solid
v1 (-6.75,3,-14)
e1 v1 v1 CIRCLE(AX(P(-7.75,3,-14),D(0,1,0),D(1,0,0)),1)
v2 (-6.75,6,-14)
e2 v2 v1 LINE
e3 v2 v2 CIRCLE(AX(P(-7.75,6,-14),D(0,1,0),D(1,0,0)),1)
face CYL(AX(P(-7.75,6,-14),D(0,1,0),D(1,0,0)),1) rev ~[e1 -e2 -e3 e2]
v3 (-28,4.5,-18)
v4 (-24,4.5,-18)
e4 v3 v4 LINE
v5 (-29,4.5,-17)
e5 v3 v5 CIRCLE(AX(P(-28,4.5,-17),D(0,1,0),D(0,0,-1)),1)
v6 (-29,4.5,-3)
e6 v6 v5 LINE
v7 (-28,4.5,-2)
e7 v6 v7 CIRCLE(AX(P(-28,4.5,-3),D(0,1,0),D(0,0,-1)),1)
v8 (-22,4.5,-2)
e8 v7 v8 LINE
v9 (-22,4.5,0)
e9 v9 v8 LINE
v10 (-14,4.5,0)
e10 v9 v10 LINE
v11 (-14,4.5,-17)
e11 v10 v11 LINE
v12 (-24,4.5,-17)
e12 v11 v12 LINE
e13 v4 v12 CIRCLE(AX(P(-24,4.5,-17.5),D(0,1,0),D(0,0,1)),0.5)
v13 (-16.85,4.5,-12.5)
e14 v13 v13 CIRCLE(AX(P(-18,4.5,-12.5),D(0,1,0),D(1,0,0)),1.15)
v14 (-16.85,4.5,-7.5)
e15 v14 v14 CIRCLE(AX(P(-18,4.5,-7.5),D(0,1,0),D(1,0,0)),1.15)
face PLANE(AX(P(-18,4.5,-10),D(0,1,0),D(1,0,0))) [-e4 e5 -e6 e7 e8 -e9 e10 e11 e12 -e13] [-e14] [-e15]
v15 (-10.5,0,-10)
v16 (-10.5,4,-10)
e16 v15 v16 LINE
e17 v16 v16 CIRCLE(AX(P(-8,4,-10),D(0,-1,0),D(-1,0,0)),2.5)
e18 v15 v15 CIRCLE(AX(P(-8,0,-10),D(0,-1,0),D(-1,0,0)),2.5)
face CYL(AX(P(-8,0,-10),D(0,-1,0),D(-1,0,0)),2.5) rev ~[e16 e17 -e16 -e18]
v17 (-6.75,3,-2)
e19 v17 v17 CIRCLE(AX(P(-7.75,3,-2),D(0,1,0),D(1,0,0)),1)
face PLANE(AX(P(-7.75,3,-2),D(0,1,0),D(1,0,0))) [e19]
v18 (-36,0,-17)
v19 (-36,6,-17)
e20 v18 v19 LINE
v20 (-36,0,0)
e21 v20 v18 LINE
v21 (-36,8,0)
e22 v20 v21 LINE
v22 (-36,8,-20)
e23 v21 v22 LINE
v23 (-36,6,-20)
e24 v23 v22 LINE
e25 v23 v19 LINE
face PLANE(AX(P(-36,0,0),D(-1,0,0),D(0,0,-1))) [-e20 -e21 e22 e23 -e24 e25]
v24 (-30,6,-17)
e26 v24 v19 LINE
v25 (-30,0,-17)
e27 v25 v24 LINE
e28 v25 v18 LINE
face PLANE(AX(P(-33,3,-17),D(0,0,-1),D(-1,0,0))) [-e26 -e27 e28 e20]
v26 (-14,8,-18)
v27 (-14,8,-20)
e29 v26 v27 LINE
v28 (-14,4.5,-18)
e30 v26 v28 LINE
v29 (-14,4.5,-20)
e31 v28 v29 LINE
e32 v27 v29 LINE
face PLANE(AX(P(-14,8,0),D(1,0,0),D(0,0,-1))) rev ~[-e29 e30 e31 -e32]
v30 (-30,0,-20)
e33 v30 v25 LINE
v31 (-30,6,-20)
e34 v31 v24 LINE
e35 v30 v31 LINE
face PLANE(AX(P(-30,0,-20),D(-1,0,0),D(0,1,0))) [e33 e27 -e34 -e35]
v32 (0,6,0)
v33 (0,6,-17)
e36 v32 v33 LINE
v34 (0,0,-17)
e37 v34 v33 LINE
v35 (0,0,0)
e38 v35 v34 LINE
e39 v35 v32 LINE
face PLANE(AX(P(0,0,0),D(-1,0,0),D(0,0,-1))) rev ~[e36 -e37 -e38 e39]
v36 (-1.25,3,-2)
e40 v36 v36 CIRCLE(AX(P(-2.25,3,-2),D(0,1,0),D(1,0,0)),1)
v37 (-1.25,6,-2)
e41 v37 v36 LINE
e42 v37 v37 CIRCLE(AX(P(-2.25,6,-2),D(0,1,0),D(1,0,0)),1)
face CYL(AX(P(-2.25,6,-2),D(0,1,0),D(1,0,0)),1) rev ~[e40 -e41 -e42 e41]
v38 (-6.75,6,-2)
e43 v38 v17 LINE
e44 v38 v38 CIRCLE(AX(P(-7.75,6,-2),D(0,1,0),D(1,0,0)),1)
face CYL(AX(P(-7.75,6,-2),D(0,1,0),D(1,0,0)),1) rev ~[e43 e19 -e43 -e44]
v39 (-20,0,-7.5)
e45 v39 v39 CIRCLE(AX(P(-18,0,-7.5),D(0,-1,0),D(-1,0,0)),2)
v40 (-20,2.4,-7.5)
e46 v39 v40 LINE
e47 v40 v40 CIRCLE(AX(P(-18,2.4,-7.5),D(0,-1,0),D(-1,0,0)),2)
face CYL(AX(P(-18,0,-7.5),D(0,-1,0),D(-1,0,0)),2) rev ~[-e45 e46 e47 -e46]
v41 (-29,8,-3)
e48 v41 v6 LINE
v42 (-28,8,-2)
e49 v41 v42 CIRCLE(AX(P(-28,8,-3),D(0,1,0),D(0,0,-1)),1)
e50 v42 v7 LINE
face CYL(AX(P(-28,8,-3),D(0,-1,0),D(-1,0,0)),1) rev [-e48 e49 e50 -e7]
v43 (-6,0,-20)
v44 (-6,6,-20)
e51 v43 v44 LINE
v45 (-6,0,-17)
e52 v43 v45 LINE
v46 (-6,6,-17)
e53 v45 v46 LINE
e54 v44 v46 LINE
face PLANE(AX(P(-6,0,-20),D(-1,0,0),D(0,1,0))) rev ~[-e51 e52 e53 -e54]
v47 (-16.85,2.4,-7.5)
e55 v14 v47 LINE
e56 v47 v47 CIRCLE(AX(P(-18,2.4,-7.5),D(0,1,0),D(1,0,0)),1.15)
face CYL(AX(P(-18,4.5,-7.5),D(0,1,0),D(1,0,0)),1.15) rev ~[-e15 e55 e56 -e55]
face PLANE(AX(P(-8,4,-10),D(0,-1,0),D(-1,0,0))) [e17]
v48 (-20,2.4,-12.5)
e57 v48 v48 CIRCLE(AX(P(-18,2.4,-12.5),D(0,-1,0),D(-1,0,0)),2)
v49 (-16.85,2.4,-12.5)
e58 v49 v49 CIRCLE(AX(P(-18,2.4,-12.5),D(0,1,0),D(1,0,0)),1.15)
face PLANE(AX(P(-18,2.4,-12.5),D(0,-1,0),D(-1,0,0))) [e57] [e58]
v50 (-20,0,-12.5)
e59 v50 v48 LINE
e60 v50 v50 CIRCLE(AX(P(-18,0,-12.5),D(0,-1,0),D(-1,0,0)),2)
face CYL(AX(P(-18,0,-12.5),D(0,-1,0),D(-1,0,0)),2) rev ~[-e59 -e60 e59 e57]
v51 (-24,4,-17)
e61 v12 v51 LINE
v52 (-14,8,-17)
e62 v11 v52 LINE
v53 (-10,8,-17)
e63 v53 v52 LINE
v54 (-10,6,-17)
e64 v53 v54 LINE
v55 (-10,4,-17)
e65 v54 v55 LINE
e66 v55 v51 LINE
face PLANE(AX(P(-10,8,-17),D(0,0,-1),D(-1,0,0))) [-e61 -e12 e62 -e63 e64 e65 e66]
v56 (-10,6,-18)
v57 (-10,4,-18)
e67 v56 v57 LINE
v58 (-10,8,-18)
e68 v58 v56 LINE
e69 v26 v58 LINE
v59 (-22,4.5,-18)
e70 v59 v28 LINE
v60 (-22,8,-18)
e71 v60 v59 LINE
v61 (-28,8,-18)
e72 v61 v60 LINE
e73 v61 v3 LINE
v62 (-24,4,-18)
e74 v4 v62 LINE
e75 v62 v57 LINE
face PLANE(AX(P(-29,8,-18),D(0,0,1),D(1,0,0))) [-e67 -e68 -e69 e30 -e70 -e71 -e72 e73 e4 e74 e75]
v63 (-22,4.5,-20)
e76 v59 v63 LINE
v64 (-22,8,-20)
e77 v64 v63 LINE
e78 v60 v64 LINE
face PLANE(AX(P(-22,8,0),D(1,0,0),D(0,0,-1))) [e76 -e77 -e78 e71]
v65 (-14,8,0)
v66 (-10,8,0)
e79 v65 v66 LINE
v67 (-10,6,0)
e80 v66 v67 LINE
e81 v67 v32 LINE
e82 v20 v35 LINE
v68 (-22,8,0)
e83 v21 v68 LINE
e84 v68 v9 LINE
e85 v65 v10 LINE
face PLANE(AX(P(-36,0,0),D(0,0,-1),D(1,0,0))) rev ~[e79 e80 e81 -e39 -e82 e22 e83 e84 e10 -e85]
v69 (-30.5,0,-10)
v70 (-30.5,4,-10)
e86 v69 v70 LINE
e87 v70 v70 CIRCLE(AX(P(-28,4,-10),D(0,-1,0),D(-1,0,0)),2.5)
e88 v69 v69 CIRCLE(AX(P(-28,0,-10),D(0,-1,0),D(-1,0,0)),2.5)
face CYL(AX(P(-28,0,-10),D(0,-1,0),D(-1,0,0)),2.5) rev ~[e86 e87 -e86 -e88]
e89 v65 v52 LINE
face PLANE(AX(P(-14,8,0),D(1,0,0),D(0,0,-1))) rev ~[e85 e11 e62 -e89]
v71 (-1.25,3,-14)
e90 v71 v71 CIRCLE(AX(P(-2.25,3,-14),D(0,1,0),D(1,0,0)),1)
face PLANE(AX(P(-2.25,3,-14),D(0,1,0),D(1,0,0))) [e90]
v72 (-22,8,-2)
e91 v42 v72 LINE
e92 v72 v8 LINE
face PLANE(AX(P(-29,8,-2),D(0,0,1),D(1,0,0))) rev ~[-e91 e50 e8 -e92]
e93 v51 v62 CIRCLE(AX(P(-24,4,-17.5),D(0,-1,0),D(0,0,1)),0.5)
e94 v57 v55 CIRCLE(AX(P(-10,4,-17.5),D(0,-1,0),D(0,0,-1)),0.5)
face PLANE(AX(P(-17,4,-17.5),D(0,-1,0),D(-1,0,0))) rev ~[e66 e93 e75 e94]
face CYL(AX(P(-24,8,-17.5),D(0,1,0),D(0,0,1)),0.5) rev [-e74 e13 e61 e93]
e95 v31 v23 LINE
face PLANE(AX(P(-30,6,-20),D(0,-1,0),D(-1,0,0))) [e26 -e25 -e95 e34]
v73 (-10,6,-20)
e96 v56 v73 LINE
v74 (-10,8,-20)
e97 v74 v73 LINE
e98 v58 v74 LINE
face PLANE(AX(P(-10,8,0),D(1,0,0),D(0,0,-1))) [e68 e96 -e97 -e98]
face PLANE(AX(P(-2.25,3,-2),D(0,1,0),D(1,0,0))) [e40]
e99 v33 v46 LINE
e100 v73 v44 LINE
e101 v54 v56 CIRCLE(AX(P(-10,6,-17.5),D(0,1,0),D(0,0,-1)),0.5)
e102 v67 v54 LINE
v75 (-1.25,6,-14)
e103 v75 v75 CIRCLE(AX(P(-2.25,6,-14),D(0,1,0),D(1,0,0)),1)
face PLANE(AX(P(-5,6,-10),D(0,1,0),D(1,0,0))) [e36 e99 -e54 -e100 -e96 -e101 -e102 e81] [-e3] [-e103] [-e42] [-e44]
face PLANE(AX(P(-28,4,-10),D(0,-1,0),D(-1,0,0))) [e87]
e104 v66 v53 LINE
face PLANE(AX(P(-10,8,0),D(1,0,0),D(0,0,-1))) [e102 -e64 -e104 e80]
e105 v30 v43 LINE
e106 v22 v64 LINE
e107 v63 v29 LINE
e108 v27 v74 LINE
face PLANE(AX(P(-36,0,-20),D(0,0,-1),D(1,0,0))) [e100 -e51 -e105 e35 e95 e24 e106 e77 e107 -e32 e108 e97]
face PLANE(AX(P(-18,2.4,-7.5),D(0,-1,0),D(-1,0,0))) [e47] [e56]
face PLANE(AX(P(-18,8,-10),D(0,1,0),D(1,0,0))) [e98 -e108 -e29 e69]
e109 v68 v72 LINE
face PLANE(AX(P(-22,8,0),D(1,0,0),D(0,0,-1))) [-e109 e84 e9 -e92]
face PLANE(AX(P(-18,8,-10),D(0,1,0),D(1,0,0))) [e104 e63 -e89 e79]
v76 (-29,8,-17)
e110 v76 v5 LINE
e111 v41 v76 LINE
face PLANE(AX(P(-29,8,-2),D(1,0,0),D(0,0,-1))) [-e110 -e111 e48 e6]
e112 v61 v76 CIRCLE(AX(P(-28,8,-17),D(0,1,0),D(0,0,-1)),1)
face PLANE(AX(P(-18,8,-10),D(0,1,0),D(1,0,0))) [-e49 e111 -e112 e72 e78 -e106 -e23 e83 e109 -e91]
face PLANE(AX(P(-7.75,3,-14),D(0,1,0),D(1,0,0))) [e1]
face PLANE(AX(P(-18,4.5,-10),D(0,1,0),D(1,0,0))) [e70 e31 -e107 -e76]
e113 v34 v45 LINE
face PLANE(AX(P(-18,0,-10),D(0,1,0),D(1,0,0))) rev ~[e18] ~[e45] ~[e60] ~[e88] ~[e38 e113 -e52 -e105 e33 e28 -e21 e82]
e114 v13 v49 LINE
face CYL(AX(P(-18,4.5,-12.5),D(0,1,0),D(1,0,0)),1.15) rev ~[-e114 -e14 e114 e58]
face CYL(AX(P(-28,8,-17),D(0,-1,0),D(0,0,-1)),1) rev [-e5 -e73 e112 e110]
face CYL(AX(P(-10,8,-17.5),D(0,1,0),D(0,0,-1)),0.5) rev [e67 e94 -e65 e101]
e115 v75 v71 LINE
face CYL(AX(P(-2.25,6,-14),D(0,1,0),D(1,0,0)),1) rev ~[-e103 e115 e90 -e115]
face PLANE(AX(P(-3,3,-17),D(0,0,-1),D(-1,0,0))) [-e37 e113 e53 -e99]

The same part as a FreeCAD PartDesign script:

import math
import FreeCAD as App
import Part
import Sketcher
Q = App.Units.Quantity


def edges_at(feature, points):
    """Names of the edges that pass closest to the given points."""
    edges = feature.Shape.Edges
    near = lambda p: min(range(len(edges)), key=lambda i: edges[i].distToShape(Part.Vertex(*p))[0])
    return sorted({f"Edge{near(p) + 1}" for p in points})

doc = App.newDocument("Part")
body = doc.addObject("PartDesign::Body", "Body")

# Sketch on XZ plane
sketch1 = body.newObject("Sketcher::SketchObject", "Sketch")
sketch1.AttachmentSupport = (doc.getObject("XZ_Plane"), [""])
sketch1.MapMode = "FlatFace"
sketch1.addGeometry([
    Part.LineSegment(App.Vector(-36, -20, 0), App.Vector(-36, 0, 0)),
    Part.LineSegment(App.Vector(-36, 0, 0), App.Vector(0, 0, 0)),
    Part.LineSegment(App.Vector(0, 0, 0), App.Vector(0, -20, 0)),
    Part.LineSegment(App.Vector(0, -20, 0), App.Vector(-36, -20, 0)),
], False)
sketch1.addConstraint([
    Sketcher.Constraint("Coincident", 0, 2, 1, 1),
    Sketcher.Constraint("Coincident", 1, 2, 2, 1),
    Sketcher.Constraint("Coincident", 2, 2, 3, 1),
    Sketcher.Constraint("Coincident", 3, 2, 0, 1),
    Sketcher.Constraint("Vertical", 0),
    Sketcher.Constraint("Horizontal", 1),
    Sketcher.Constraint("Vertical", 2),
    Sketcher.Constraint("Horizontal", 3),
    Sketcher.Constraint("Coincident", 1, 2, -1, 1),
    Sketcher.Constraint("DistanceX", 1, 1, 1, 2, Q("36 mm")),
    Sketcher.Constraint("DistanceY", 0, 1, 0, 2, Q("20 mm")),
])
pad1 = body.newObject("PartDesign::Pad", "Pad")
pad1.Profile = sketch1
pad1.Length = 8
pad1.Reversed = True

# Sketch on XZ plane
sketch2 = body.newObject("Sketcher::SketchObject", "Sketch001")
sketch2.AttachmentSupport = (doc.getObject("XZ_Plane"), [""])
sketch2.MapMode = "FlatFace"
sketch2.AttachmentOffset = App.Placement(App.Vector(0, 0, -8), App.Rotation())
sketch2.addGeometry([
    Part.LineSegment(App.Vector(-22, -20, 0), App.Vector(-22, 0, 0)),
    Part.LineSegment(App.Vector(-22, 0, 0), App.Vector(-14, 0, 0)),
    Part.LineSegment(App.Vector(-14, 0, 0), App.Vector(-14, -20, 0)),
    Part.LineSegment(App.Vector(-14, -20, 0), App.Vector(-22, -20, 0)),
], False)
sketch2.addConstraint([
    Sketcher.Constraint("Coincident", 0, 2, 1, 1),
    Sketcher.Constraint("Coincident", 1, 2, 2, 1),
    Sketcher.Constraint("Coincident", 2, 2, 3, 1),
    Sketcher.Constraint("Coincident", 3, 2, 0, 1),
    Sketcher.Constraint("Vertical", 0),
    Sketcher.Constraint("Horizontal", 1),
    Sketcher.Constraint("Vertical", 2),
    Sketcher.Constraint("Horizontal", 3),
    Sketcher.Constraint("PointOnObject", 0, 2, -1),
    Sketcher.Constraint("DistanceX", 1, 1, 1, 2, Q("8 mm")),
    Sketcher.Constraint("DistanceY", 0, 1, 0, 2, Q("20 mm")),
    Sketcher.Constraint("DistanceX", 0, 2, -1, 1, Q("22 mm")),
])
pocket1 = body.newObject("PartDesign::Pocket", "Pocket")
pocket1.Profile = sketch2
pocket1.Length = 3.5
pocket1.Reversed = True

# Sketch on XZ plane
sketch3 = body.newObject("Sketcher::SketchObject", "Sketch002")
sketch3.AttachmentSupport = (doc.getObject("XZ_Plane"), [""])
sketch3.MapMode = "FlatFace"
sketch3.addGeometry([
    Part.Circle(App.Vector(-8, -10, 0), App.Vector(0, 0, 1), 2.5),
    Part.Circle(App.Vector(-28, -10, 0), App.Vector(0, 0, 1), 2.5),
], False)
sketch3.addConstraint([
    Sketcher.Constraint("Equal", 0, 1),
    Sketcher.Constraint("Horizontal", 0, 3, 1, 3),
    Sketcher.Constraint("Diameter", 0, Q("5 mm")),
    Sketcher.Constraint("DistanceX", 0, 3, -1, 1, Q("8 mm")),
    Sketcher.Constraint("DistanceY", 0, 3, -1, 1, Q("10 mm")),
    Sketcher.Constraint("DistanceX", 1, 3, -1, 1, Q("28 mm")),
])
pocket2 = body.newObject("PartDesign::Pocket", "Pocket001")
pocket2.Profile = sketch3
pocket2.Length = 4

# Sketch on XZ plane
sketch4 = body.newObject("Sketcher::SketchObject", "Sketch003")
sketch4.AttachmentSupport = (doc.getObject("XZ_Plane"), [""])
sketch4.MapMode = "FlatFace"
sketch4.AttachmentOffset = App.Placement(App.Vector(0, 0, -8), App.Rotation())
sketch4.addGeometry([
    Part.LineSegment(App.Vector(-29, -18, 0), App.Vector(-29, -2, 0)),
    Part.LineSegment(App.Vector(-29, -2, 0), App.Vector(-22, -2, 0)),
    Part.LineSegment(App.Vector(-22, -2, 0), App.Vector(-22, -18, 0)),
    Part.LineSegment(App.Vector(-22, -18, 0), App.Vector(-29, -18, 0)),
], False)
sketch4.addConstraint([
    Sketcher.Constraint("Coincident", 0, 2, 1, 1),
    Sketcher.Constraint("Coincident", 1, 2, 2, 1),
    Sketcher.Constraint("Coincident", 2, 2, 3, 1),
    Sketcher.Constraint("Coincident", 3, 2, 0, 1),
    Sketcher.Constraint("Vertical", 0),
    Sketcher.Constraint("Horizontal", 1),
    Sketcher.Constraint("Vertical", 2),
    Sketcher.Constraint("Horizontal", 3),
    Sketcher.Constraint("DistanceX", 1, 1, 1, 2, Q("7 mm")),
    Sketcher.Constraint("DistanceY", 0, 1, 0, 2, Q("16 mm")),
    Sketcher.Constraint("DistanceX", 0, 2, -1, 1, Q("29 mm")),
    Sketcher.Constraint("DistanceY", 0, 2, -1, 1, Q("2 mm")),
])
pocket3 = body.newObject("PartDesign::Pocket", "Pocket002")
pocket3.Profile = sketch4
pocket3.Length = 3.5
pocket3.Reversed = True
doc.recompute()

fillet = body.newObject("PartDesign::Fillet", "Fillet")
fillet.Base = (pocket3, edges_at(pocket3, [(-29, 6.25, -2), (-29, 6.25, -18)]))
fillet.Radius = 1

# Sketch on XZ plane
sketch5 = body.newObject("Sketcher::SketchObject", "Sketch004")
sketch5.AttachmentSupport = (doc.getObject("XZ_Plane"), [""])
sketch5.MapMode = "FlatFace"
sketch5.AttachmentOffset = App.Placement(App.Vector(0, 0, -4.5), App.Rotation())
sketch5.addGeometry([
    Part.Circle(App.Vector(-18, -12.5, 0), App.Vector(0, 0, 1), 1.1),
    Part.Circle(App.Vector(-18, -7.5, 0), App.Vector(0, 0, 1), 1.1),
], False)
sketch5.addConstraint([
    Sketcher.Constraint("Equal", 0, 1),
    Sketcher.Constraint("Vertical", 0, 3, 1, 3),
    Sketcher.Constraint("Diameter", 0, Q("2.3 mm")),
    Sketcher.Constraint("DistanceX", 0, 3, -1, 1, Q("18 mm")),
    Sketcher.Constraint("DistanceY", 0, 3, 1, 3, Q("5 mm")),
    Sketcher.Constraint("DistanceY", 0, 3, -1, 1, Q("12.5 mm")),
])
pocket4 = body.newObject("PartDesign::Pocket", "Pocket003")
pocket4.Profile = sketch5
pocket4.Type = "ThroughAll"
pocket4.Reversed = True

# Sketch on XZ plane
sketch6 = body.newObject("Sketcher::SketchObject", "Sketch005")
sketch6.AttachmentSupport = (doc.getObject("XZ_Plane"), [""])
sketch6.MapMode = "FlatFace"
sketch6.AttachmentOffset = App.Placement(App.Vector(0, 0, -8), App.Rotation())
sketch6.addGeometry([
    Part.LineSegment(App.Vector(-10, -20, 0), App.Vector(-10, 0, 0)),
    Part.LineSegment(App.Vector(-10, 0, 0), App.Vector(0, 0, 0)),
    Part.LineSegment(App.Vector(0, 0, 0), App.Vector(0, -20, 0)),
    Part.LineSegment(App.Vector(0, -20, 0), App.Vector(-10, -20, 0)),
], False)
sketch6.addConstraint([
    Sketcher.Constraint("Coincident", 0, 2, 1, 1),
    Sketcher.Constraint("Coincident", 1, 2, 2, 1),
    Sketcher.Constraint("Coincident", 2, 2, 3, 1),
    Sketcher.Constraint("Coincident", 3, 2, 0, 1),
    Sketcher.Constraint("Vertical", 0),
    Sketcher.Constraint("Horizontal", 1),
    Sketcher.Constraint("Vertical", 2),
    Sketcher.Constraint("Horizontal", 3),
    Sketcher.Constraint("Coincident", 1, 2, -1, 1),
    Sketcher.Constraint("DistanceX", 1, 1, 1, 2, Q("10 mm")),
    Sketcher.Constraint("DistanceY", 0, 1, 0, 2, Q("20 mm")),
])
pocket5 = body.newObject("PartDesign::Pocket", "Pocket004")
pocket5.Profile = sketch6
pocket5.Length = 2
pocket5.Reversed = True

# Sketch on XZ plane
sketch7 = body.newObject("Sketcher::SketchObject", "Sketch006")
sketch7.AttachmentSupport = (doc.getObject("XZ_Plane"), [""])
sketch7.MapMode = "FlatFace"
sketch7.AttachmentOffset = App.Placement(App.Vector(0, 0, -8), App.Rotation())
sketch7.addGeometry([
    Part.LineSegment(App.Vector(-10, -18, 0), App.Vector(-24, -18, 0)),
    Part.ArcOfCircle(Part.Circle(App.Vector(-24, -17.5, 0), App.Vector(0, 0, 1), 0.5), math.radians(90), math.radians(270)),
    Part.LineSegment(App.Vector(-24, -17, 0), App.Vector(-10, -17, 0)),
    Part.ArcOfCircle(Part.Circle(App.Vector(-10, -17.5, 0), App.Vector(0, 0, 1), 0.5), math.radians(-90), math.radians(90)),
], False)
sketch7.addConstraint([
    Sketcher.Constraint("Tangent", 0, 2, 1, 2),
    Sketcher.Constraint("Tangent", 1, 1, 2, 1),
    Sketcher.Constraint("Tangent", 2, 2, 3, 2),
    Sketcher.Constraint("Tangent", 3, 1, 0, 1),
    Sketcher.Constraint("Horizontal", 0),
    Sketcher.Constraint("Horizontal", 2),
    Sketcher.Constraint("Radius", 1, Q("0.5 mm")),
    Sketcher.Constraint("DistanceX", 0, 2, 0, 1, Q("14 mm")),
    Sketcher.Constraint("DistanceX", 1, 3, -1, 1, Q("24 mm")),
    Sketcher.Constraint("DistanceY", 0, 2, -1, 1, Q("18 mm")),
])
pocket6 = body.newObject("PartDesign::Pocket", "Pocket005")
pocket6.Profile = sketch7
pocket6.Length = 4
pocket6.Reversed = True

# Sketch on XZ plane
sketch8 = body.newObject("Sketcher::SketchObject", "Sketch007")
sketch8.AttachmentSupport = (doc.getObject("XZ_Plane"), [""])
sketch8.MapMode = "FlatFace"
sketch8.AttachmentOffset = App.Placement(App.Vector(0, 0, -6), App.Rotation())
sketch8.addGeometry([
    Part.Circle(App.Vector(-2.2, -2, 0), App.Vector(0, 0, 1), 1),
    Part.Circle(App.Vector(-7.8, -2, 0), App.Vector(0, 0, 1), 1),
    Part.Circle(App.Vector(-2.2, -14, 0), App.Vector(0, 0, 1), 1),
    Part.Circle(App.Vector(-7.8, -14, 0), App.Vector(0, 0, 1), 1),
], False)
sketch8.addConstraint([
    Sketcher.Constraint("Equal", 0, 1),
    Sketcher.Constraint("Equal", 1, 2),
    Sketcher.Constraint("Equal", 2, 3),
    Sketcher.Constraint("Horizontal", 0, 3, 1, 3),
    Sketcher.Constraint("Horizontal", 2, 3, 3, 3),
    Sketcher.Constraint("Vertical", 0, 3, 2, 3),
    Sketcher.Constraint("Vertical", 1, 3, 3, 3),
    Sketcher.Constraint("Diameter", 0, Q("2 mm")),
    Sketcher.Constraint("DistanceY", 0, 3, -1, 1, Q("2 mm")),
    Sketcher.Constraint("DistanceY", 2, 3, -1, 1, Q("14 mm")),
    Sketcher.Constraint("DistanceX", 1, 3, 0, 3, Q("5.5 mm")),
    Sketcher.Constraint("DistanceX", 0, 3, -1, 1, Q("2.25 mm")),
])
pocket7 = body.newObject("PartDesign::Pocket", "Pocket006")
pocket7.Profile = sketch8
pocket7.Length = 3
pocket7.Reversed = True

# Sketch on XZ plane
sketch9 = body.newObject("Sketcher::SketchObject", "Sketch008")
sketch9.AttachmentSupport = (doc.getObject("XZ_Plane"), [""])
sketch9.MapMode = "FlatFace"
sketch9.addGeometry([
    Part.Circle(App.Vector(-18, -12.5, 0), App.Vector(0, 0, 1), 2),
    Part.Circle(App.Vector(-18, -7.5, 0), App.Vector(0, 0, 1), 2),
], False)
sketch9.addConstraint([
    Sketcher.Constraint("Equal", 0, 1),
    Sketcher.Constraint("Vertical", 0, 3, 1, 3),
    Sketcher.Constraint("Diameter", 0, Q("4 mm")),
    Sketcher.Constraint("DistanceX", 0, 3, -1, 1, Q("18 mm")),
    Sketcher.Constraint("DistanceY", 0, 3, 1, 3, Q("5 mm")),
    Sketcher.Constraint("DistanceY", 0, 3, -1, 1, Q("12.5 mm")),
])
pocket8 = body.newObject("PartDesign::Pocket", "Pocket007")
pocket8.Profile = sketch9
pocket8.Length = 2.4

# Sketch on XY plane
sketch10 = body.newObject("Sketcher::SketchObject", "Sketch009")
sketch10.AttachmentSupport = (doc.getObject("XY_Plane"), [""])
sketch10.MapMode = "FlatFace"
sketch10.AttachmentOffset = App.Placement(App.Vector(0, 0, -20), App.Rotation())
sketch10.addGeometry([
    Part.LineSegment(App.Vector(0, 6, 0), App.Vector(0, 0, 0)),  # 0
    Part.LineSegment(App.Vector(0, 0, 0), App.Vector(-6, 0, 0)),  # 1
    Part.LineSegment(App.Vector(-6, 0, 0), App.Vector(-6, 6, 0)),  # 2
    Part.LineSegment(App.Vector(-6, 6, 0), App.Vector(0, 6, 0)),  # 3
    Part.LineSegment(App.Vector(-30, 6, 0), App.Vector(-30, 0, 0)),  # 4
    Part.LineSegment(App.Vector(-30, 0, 0), App.Vector(-36, 0, 0)),  # 5
    Part.LineSegment(App.Vector(-36, 0, 0), App.Vector(-36, 6, 0)),  # 6
    Part.LineSegment(App.Vector(-36, 6, 0), App.Vector(-30, 6, 0)),  # 7
], False)
sketch10.addConstraint([
    Sketcher.Constraint("Coincident", 0, 2, 1, 1),
    Sketcher.Constraint("Coincident", 1, 2, 2, 1),
    Sketcher.Constraint("Coincident", 2, 2, 3, 1),
    Sketcher.Constraint("Coincident", 3, 2, 0, 1),
    Sketcher.Constraint("Coincident", 4, 2, 5, 1),
    Sketcher.Constraint("Coincident", 5, 2, 6, 1),
    Sketcher.Constraint("Coincident", 6, 2, 7, 1),
    Sketcher.Constraint("Coincident", 7, 2, 4, 1),
    Sketcher.Constraint("Vertical", 0),
    Sketcher.Constraint("Horizontal", 1),
    Sketcher.Constraint("Vertical", 2),
    Sketcher.Constraint("Horizontal", 3),
    Sketcher.Constraint("Vertical", 4),
    Sketcher.Constraint("Horizontal", 5),
    Sketcher.Constraint("Vertical", 6),
    Sketcher.Constraint("Horizontal", 7),
    Sketcher.Constraint("Coincident", 0, 2, -1, 1),
    Sketcher.Constraint("PointOnObject", 4, 2, -1),
    Sketcher.Constraint("Horizontal", 3, 2, 6, 2),
    Sketcher.Constraint("Equal", 3, 5),
    Sketcher.Constraint("Equal", 7, 0),
    Sketcher.Constraint("DistanceX", 1, 2, 1, 1, Q("6 mm")),
    Sketcher.Constraint("DistanceX", 4, 2, -1, 1, Q("30 mm")),
])
pocket9 = body.newObject("PartDesign::Pocket", "Pocket008")
pocket9.Profile = sketch10
pocket9.Length = 3
pocket9.Reversed = True

doc.recompute()
